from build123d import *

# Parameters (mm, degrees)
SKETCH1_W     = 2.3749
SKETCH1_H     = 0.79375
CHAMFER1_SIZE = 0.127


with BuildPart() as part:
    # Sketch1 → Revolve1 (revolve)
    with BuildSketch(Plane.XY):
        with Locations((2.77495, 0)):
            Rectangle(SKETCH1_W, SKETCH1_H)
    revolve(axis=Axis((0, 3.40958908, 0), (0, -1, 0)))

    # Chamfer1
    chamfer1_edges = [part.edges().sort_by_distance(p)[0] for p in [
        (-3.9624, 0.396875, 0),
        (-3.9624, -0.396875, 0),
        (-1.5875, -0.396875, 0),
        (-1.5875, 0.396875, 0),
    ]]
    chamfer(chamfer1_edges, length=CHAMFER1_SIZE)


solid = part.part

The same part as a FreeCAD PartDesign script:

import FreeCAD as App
import Part
import Sketcher

V = App.Vector
Q = App.Units.Quantity


def edges_at(feature, points):
    """Names of the edges that pass closest to the given points."""
    edges = feature.Shape.Edges
    near = lambda p: min(range(len(edges)), key=lambda i: edges[i].distToShape(Part.Vertex(*p))[0])
    return sorted({f"Edge{near(p) + 1}" for p in points})


def add_polygon(sketch, points):
    """Adds a closed chain of lines whose ends are joined by coincident constraints."""
    first, n = sketch.GeometryCount, len(points)
    for a, b in zip(points, points[1:] + points[:1]):
        sketch.addGeometry(Part.LineSegment(App.Vector(*a, 0), App.Vector(*b, 0)), False)
    for i in range(n):
        sketch.addConstraint(Sketcher.Constraint("Coincident", first + i, 2, first + (i + 1) % n, 1))

doc = App.newDocument("Part")
params = doc.addObject("Spreadsheet::Sheet", "Params")
for row, (alias, value) in enumerate([
    ("sketch1_height", "0.03125 in"),
    ("revolution_angle", "360 deg"),
    ("chamfer_size", "0.005 in"),
], start=1):
    params.set(f"A{row}", alias)
    params.set(f"B{row}", "=" + value)
    params.setAlias(f"B{row}", alias)

body = doc.addObject("PartDesign::Body", "Body")

# Sketch on XY plane
sketch1 = doc.addObject("Sketcher::SketchObject", "Sketch")
body.addObject(sketch1)
sketch1.AttachmentSupport = (doc.XY_Plane, [""])
sketch1.MapMode = "FlatFace"
add_polygon(sketch1, [(1.6, 0.4), (1.6, -0.4), (4, -0.4), (4, 0.4)])  # lines 0-3
sketch1.addConstraint([
    Sketcher.Constraint("Vertical", 0),
    Sketcher.Constraint("Horizontal", 1),
    Sketcher.Constraint("Vertical", 2),
    Sketcher.Constraint("Horizontal", 3),
    Sketcher.Constraint("DistanceY", 0, 2, 0, 1, Q("0.03125 in")),
    Sketcher.Constraint("DistanceX", 1, 1, 1, 2, Q("0.0935 in")),
    Sketcher.Constraint("DistanceX", -1, 1, 0, 2, Q("0.0625 in")),
    Sketcher.Constraint("DistanceY", 0, 2, -1, 1, Q("0.015625 in")),
])
sketch1.setExpression("Constraints[8]", "Params.sketch1_height")
revolution = doc.addObject("PartDesign::Revolution", "Revolution")
body.addObject(revolution)
revolution.Profile = sketch1
revolution.ReferenceAxis = (sketch1, ["V_Axis"])
revolution.setExpression("Angle", "Params.revolution_angle")
doc.recompute()

chamfer = doc.addObject("PartDesign::Chamfer", "Chamfer")
body.addObject(chamfer)
chamfer.Base = (revolution, edges_at(revolution, [
    (-3.962, 0.397, 0),
    (-3.962, -0.397, 0),
    (-1.587, -0.397, 0),
    (-1.587, 0.397, 0),
]))
chamfer.setExpression("Size", "Params.chamfer_size")

doc.recompute()
